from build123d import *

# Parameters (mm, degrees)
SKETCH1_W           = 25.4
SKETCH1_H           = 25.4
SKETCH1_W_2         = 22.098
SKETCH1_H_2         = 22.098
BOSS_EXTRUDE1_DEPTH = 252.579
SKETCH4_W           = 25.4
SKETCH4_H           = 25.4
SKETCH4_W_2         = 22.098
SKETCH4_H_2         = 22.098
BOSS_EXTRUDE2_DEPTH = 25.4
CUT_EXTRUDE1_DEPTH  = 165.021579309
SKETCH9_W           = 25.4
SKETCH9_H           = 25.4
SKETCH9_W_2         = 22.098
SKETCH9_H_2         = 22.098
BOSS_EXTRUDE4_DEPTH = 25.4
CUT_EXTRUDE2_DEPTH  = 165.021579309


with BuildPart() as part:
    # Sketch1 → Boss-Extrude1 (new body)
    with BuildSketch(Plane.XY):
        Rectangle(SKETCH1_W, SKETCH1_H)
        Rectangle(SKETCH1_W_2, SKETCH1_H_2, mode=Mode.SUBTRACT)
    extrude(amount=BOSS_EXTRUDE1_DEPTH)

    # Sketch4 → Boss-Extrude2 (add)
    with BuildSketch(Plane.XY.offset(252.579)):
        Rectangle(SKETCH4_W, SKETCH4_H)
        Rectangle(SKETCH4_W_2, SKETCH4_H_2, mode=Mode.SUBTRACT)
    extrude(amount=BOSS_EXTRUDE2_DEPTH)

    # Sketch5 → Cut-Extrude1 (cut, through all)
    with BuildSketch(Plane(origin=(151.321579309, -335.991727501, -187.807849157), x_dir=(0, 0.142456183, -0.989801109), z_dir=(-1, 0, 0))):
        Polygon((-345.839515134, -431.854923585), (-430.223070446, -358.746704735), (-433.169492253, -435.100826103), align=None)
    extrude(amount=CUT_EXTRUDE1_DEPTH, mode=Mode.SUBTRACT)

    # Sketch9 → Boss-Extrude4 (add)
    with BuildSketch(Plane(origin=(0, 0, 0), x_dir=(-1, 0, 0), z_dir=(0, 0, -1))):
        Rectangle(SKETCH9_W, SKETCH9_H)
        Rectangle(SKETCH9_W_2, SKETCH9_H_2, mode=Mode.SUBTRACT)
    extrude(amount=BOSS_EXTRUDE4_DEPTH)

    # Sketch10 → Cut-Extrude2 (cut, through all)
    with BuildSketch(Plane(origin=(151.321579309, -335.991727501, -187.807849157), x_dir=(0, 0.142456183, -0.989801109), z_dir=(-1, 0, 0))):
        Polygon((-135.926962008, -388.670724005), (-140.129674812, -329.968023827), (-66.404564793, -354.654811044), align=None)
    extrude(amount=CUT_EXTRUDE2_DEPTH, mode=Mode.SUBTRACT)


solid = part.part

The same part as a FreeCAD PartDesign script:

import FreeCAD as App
import Part
import Sketcher
from FreeCAD import Vector
Q = App.Units.Quantity


def add_polygon(sketch, points):
    """Adds a closed chain of lines whose ends are joined by coincident constraints."""
    first, n = sketch.GeometryCount, len(points)
    for a, b in zip(points, points[1:] + points[:1]):
        sketch.addGeometry(Part.LineSegment(App.Vector(*a, 0), App.Vector(*b, 0)), False)
    for i in range(n):
        sketch.addConstraint(Sketcher.Constraint("Coincident", first + i, 2, first + (i + 1) % n, 1))

doc = App.newDocument("Part")
body = doc.addObject("PartDesign::Body", "Body")

# Sketch on XY plane
sketch1 = doc.addObject("Sketcher::SketchObject", "Sketch")
body.addObject(sketch1)
sketch1.AttachmentSupport = (doc.XY_Plane, [""])
sketch1.MapMode = "FlatFace"
add_polygon(sketch1, [(-13, 13), (-13, -13), (13, -13), (13, 13)])  # lines 0-3
add_polygon(sketch1, [(11, -11), (-11, -11), (-11, 11), (11, 11)])  # lines 4-7
sketch1.addConstraint([
    Sketcher.Constraint("Vertical", 0),
    Sketcher.Constraint("Horizontal", 1),
    Sketcher.Constraint("Vertical", 2),
    Sketcher.Constraint("Horizontal", 3),
    Sketcher.Constraint("Horizontal", 4),
    Sketcher.Constraint("Vertical", 5),
    Sketcher.Constraint("Horizontal", 6),
    Sketcher.Constraint("Vertical", 7),
    Sketcher.Constraint("Symmetric", 0, 2, 2, 2, -1, 1),
    Sketcher.Constraint("Symmetric", 4, 2, 6, 2, -1, 1),
    Sketcher.Constraint("Equal", 3, 0),
    Sketcher.Constraint("Equal", 6, 5),
    Sketcher.Constraint("DistanceX", 1, 1, 1, 2, Q("1 in")),
    Sketcher.Constraint("DistanceX", 4, 2, 4, 1, Q("0.87 in")),
])
pad1 = doc.addObject("PartDesign::Pad", "Pad")
body.addObject(pad1)
pad1.Profile = sketch1
pad1.Length = 252.579

# Sketch on XY plane
sketch2 = doc.addObject("Sketcher::SketchObject", "Sketch001")
body.addObject(sketch2)
sketch2.AttachmentSupport = (doc.XY_Plane, [""])
sketch2.MapMode = "FlatFace"
sketch2.AttachmentOffset = App.Placement(Vector(0, 0, 252.579), App.Rotation())
add_polygon(sketch2, [(-13, 13), (-13, -13), (13, -13), (13, 13)])  # lines 0-3
add_polygon(sketch2, [(11, -11), (-11, -11), (-11, 11), (11, 11)])  # lines 4-7
sketch2.addConstraint([
    Sketcher.Constraint("Vertical", 0),
    Sketcher.Constraint("Horizontal", 1),
    Sketcher.Constraint("Vertical", 2),
    Sketcher.Constraint("Horizontal", 3),
    Sketcher.Constraint("Horizontal", 4),
    Sketcher.Constraint("Vertical", 5),
    Sketcher.Constraint("Horizontal", 6),
    Sketcher.Constraint("Vertical", 7),
    Sketcher.Constraint("Symmetric", 0, 2, 2, 2, -1, 1),
    Sketcher.Constraint("Symmetric", 4, 2, 6, 2, -1, 1),
    Sketcher.Constraint("Equal", 3, 0),
    Sketcher.Constraint("Equal", 6, 5),
    Sketcher.Constraint("DistanceX", 1, 1, 1, 2, Q("1 in")),
    Sketcher.Constraint("DistanceX", 4, 2, 4, 1, Q("0.87 in")),
])
pad2 = doc.addObject("PartDesign::Pad", "Pad001")
body.addObject(pad2)
pad2.Profile = sketch2
pad2.Length = Q("1 in")

# Sketch on YZ plane
sketch3 = doc.addObject("Sketcher::SketchObject", "Sketch002")
body.addObject(sketch3)
sketch3.AttachmentSupport = (doc.YZ_Plane, [""])
sketch3.MapMode = "FlatFace"
sketch3.AttachmentOffset = App.Placement(Vector(0, 0, 151.321579), App.Rotation())
add_polygon(sketch3, [(42, 216), (-42, 289), (33, 303)])  # lines 0-2
sketch3.addConstraint([
    Sketcher.Constraint("Distance", 0, 111.648538),
    Sketcher.Constraint("Distance", 1, 76.41095),
    Sketcher.Constraint("Distance", 2, 87.390279),
    Sketcher.Constraint("DistanceY", -1, 1, 0, 2, 289.133109),
    Sketcher.Constraint("DistanceX", -1, 1, 1, 2, 32.96388),
    Sketcher.Constraint("DistanceY", -1, 1, 2, 2, 216.02489),
])
pocket1 = doc.addObject("PartDesign::Pocket", "Pocket")
body.addObject(pocket1)
pocket1.Profile = sketch3
pocket1.Type = "ThroughAll"

# Sketch on XY plane
sketch4 = doc.addObject("Sketcher::SketchObject", "Sketch003")
body.addObject(sketch4)
sketch4.AttachmentSupport = (doc.XY_Plane, [""])
sketch4.MapMode = "FlatFace"
add_polygon(sketch4, [(13, 13), (13, -13), (-13, -13), (-13, 13)])  # lines 0-3
add_polygon(sketch4, [(-11, -11), (11, -11), (11, 11), (-11, 11)])  # lines 4-7
sketch4.addConstraint([
    Sketcher.Constraint("Vertical", 0),
    Sketcher.Constraint("Horizontal", 1),
    Sketcher.Constraint("Vertical", 2),
    Sketcher.Constraint("Horizontal", 3),
    Sketcher.Constraint("Horizontal", 4),
    Sketcher.Constraint("Vertical", 5),
    Sketcher.Constraint("Horizontal", 6),
    Sketcher.Constraint("Vertical", 7),
    Sketcher.Constraint("Symmetric", 0, 2, 2, 2, -1, 1),
    Sketcher.Constraint("Symmetric", 4, 2, 6, 2, -1, 1),
    Sketcher.Constraint("Equal", 3, 0),
    Sketcher.Constraint("Equal", 6, 5),
    Sketcher.Constraint("DistanceX", 1, 2, 1, 1, Q("1 in")),
    Sketcher.Constraint("DistanceX", 4, 1, 4, 2, Q("0.87 in")),
])
pad3 = doc.addObject("PartDesign::Pad", "Pad002")
body.addObject(pad3)
pad3.Profile = sketch4
pad3.Length = Q("1 in")
pad3.Reversed = True

# Sketch on YZ plane
sketch5 = doc.addObject("Sketcher::SketchObject", "Sketch004")
body.addObject(sketch5)
sketch5.AttachmentSupport = (doc.YZ_Plane, [""])
sketch5.MapMode = "FlatFace"
sketch5.AttachmentOffset = App.Placement(Vector(0, 0, 151.321579), App.Rotation())
add_polygon(sketch5, [(-29, -2), (29, 2), (6, -72)])  # lines 0-2
sketch5.addConstraint([
    Sketcher.Constraint("Symmetric", 0, 2, 2, 2, -1, 1),
    Sketcher.Constraint("Distance", 2, 77.7485),
    Sketcher.Constraint("DistanceX", 2, 2, 0, 2, 58.7027),
    Sketcher.Constraint("Distance", 0, 58.852951),
    Sketcher.Constraint("Distance", 1, 77.397972),
])
pocket2 = doc.addObject("PartDesign::Pocket", "Pocket001")
body.addObject(pocket2)
pocket2.Profile = sketch5
pocket2.Type = "ThroughAll"

doc.recompute()
